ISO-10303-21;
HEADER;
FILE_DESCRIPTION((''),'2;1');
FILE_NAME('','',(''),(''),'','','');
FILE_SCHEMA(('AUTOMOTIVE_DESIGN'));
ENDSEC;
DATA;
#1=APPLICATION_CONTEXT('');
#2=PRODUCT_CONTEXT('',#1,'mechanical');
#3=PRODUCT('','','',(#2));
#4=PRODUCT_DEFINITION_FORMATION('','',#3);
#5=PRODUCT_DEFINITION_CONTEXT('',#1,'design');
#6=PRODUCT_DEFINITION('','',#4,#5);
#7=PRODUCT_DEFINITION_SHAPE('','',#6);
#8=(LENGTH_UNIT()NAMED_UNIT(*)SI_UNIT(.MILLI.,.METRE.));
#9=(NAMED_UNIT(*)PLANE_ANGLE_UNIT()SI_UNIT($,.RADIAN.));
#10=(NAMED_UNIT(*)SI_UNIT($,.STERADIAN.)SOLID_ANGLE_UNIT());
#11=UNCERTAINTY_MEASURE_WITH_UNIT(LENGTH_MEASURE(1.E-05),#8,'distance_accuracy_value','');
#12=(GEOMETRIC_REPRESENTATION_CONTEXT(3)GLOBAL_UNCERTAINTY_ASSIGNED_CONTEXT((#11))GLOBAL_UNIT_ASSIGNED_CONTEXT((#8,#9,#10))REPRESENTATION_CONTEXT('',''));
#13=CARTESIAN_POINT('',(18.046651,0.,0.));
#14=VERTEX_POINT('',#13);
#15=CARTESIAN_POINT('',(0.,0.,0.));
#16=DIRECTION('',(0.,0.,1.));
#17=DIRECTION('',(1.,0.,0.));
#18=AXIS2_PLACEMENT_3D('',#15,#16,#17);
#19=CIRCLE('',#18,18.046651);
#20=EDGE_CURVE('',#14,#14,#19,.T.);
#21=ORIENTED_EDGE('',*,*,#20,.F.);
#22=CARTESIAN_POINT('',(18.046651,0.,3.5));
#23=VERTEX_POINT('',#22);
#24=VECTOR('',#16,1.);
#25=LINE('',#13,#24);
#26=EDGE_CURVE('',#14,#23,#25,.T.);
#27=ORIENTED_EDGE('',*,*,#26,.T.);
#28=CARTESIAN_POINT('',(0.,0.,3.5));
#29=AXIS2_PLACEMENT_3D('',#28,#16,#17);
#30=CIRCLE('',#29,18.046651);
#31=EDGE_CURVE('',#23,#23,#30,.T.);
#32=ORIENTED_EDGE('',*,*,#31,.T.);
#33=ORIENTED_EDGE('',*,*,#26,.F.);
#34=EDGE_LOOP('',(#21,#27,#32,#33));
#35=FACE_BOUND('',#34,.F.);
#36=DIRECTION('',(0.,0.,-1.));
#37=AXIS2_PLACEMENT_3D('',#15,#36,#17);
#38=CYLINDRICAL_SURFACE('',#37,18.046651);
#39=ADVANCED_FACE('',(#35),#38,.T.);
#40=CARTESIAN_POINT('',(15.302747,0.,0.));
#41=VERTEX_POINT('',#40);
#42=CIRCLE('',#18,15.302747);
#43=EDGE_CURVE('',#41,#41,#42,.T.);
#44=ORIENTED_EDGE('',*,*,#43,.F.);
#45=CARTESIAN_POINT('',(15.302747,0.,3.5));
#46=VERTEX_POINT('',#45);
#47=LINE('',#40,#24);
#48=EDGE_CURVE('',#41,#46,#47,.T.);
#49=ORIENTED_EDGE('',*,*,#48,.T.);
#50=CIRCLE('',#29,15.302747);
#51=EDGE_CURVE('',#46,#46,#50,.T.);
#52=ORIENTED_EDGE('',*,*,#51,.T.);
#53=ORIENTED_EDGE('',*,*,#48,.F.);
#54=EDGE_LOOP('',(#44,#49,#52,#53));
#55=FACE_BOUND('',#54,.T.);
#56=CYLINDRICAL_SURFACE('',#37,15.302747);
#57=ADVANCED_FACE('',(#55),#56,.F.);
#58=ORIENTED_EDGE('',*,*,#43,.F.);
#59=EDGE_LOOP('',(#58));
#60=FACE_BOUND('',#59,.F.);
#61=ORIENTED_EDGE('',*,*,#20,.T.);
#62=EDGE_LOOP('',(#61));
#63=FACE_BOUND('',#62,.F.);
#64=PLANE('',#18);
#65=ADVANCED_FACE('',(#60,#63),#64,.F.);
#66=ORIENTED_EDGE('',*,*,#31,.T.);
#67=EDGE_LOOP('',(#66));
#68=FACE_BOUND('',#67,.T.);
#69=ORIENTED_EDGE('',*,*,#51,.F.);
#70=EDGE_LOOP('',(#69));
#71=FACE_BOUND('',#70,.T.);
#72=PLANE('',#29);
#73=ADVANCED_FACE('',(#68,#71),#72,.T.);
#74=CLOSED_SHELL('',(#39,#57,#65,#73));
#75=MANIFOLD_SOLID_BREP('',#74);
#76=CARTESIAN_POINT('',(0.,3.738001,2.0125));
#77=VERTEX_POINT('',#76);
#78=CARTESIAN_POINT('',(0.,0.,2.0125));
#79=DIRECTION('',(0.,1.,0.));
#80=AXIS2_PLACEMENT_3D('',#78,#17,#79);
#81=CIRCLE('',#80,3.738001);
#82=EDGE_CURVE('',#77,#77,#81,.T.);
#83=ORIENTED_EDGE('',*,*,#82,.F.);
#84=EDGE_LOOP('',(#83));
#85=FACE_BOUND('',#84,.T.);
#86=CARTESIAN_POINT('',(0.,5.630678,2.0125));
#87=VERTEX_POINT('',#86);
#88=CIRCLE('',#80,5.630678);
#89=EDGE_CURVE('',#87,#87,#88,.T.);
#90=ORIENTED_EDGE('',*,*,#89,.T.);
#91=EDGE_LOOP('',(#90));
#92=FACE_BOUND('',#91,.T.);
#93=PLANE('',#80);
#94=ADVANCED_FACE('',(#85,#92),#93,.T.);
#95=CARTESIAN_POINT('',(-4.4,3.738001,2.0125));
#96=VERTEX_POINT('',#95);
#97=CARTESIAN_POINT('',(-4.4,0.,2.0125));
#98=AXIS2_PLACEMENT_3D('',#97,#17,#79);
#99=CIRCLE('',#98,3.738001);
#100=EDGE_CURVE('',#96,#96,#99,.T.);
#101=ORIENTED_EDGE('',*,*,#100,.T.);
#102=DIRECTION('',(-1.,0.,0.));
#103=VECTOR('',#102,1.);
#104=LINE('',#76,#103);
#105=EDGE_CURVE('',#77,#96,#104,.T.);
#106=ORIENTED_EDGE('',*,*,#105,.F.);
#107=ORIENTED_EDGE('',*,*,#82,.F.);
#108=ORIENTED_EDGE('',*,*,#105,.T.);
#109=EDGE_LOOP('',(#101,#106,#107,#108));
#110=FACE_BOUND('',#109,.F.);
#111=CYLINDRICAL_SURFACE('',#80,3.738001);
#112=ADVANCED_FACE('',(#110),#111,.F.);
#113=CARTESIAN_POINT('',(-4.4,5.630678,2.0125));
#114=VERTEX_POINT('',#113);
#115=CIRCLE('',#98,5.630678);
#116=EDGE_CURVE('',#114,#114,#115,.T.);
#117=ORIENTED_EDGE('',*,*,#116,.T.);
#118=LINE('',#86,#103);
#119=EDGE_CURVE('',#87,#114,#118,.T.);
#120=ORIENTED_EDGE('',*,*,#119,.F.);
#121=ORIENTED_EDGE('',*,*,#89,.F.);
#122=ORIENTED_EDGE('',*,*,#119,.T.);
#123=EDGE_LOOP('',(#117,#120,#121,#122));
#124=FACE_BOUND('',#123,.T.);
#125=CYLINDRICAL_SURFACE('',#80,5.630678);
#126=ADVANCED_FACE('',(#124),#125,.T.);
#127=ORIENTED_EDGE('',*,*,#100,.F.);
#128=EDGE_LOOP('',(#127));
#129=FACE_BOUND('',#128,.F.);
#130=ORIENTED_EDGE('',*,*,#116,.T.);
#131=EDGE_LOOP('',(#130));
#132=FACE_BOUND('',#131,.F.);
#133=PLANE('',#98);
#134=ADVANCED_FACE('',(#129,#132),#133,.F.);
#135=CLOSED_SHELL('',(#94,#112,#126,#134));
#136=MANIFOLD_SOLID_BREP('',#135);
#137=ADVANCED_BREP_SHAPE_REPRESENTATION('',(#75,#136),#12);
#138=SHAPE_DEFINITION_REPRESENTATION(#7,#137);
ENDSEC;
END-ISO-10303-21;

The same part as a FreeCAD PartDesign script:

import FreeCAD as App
import Part
import Sketcher
from FreeCAD import Vector

doc = App.newDocument("Part")
body = doc.addObject("PartDesign::Body", "Body")

# Sketch on XY plane
sketch1 = body.newObject("Sketcher::SketchObject", "Sketch")
sketch1.AttachmentSupport = (doc.getObject("XY_Plane"), [""])
sketch1.MapMode = "FlatFace"
sketch1.addGeometry(Part.Circle(Vector(0, 0, 0), Vector(0, 0, 1), 18), False)
sketch1.addGeometry(Part.Circle(Vector(0, 0, 0), Vector(0, 0, 1), 15), False)
sketch1.addConstraint(Sketcher.Constraint("Coincident", 0, 3, -1, 1))
sketch1.addConstraint(Sketcher.Constraint("Coincident", 1, 3, -1, 1))
sketch1.addConstraint(Sketcher.Constraint("Diameter", 0, 36.093302))
sketch1.addConstraint(Sketcher.Constraint("Diameter", 1, 30.605494))
pad1 = body.newObject("PartDesign::Pad", "Pad")
pad1.Profile = sketch1
pad1.Length = 3.5
body2 = doc.addObject("PartDesign::Body", "Body001")

# Sketch on YZ plane
sketch2 = body2.newObject("Sketcher::SketchObject", "Sketch001")
sketch2.AttachmentSupport = (doc.getObject("YZ_Plane001"), [""])
sketch2.MapMode = "FlatFace"
sketch2.addGeometry(Part.Circle(Vector(0, 2, 0), Vector(0, 0, 1), 5.6), False)
sketch2.addGeometry(Part.Circle(Vector(0, 2, 0), Vector(0, 0, 1), 3.7), False)
sketch2.addConstraint(Sketcher.Constraint("Coincident", 1, 3, 0, 3))
sketch2.addConstraint(Sketcher.Constraint("PointOnObject", 0, 3, -2))
sketch2.addConstraint(Sketcher.Constraint("Diameter", 0, 11.261356))
sketch2.addConstraint(Sketcher.Constraint("Diameter", 1, 7.476002))
sketch2.addConstraint(Sketcher.Constraint("DistanceY", -1, 1, 0, 3, 2.0125))
pad2 = body2.newObject("PartDesign::Pad", "Pad001")
pad2.Profile = sketch2
pad2.Length = 4.4
pad2.Reversed = True
body3 = doc.addObject("PartDesign::Body", "Body002")
doc.recompute()

body2.Placement = App.Placement(Vector(0, 1.00625, 0.269624), App.Rotation(Vector(1, 0, 0), 30))
boolean = body3.newObject("PartDesign::Boolean", "Boolean")
boolean.Type = "Fuse"
boolean.addObjects([body2])

doc.recompute()
